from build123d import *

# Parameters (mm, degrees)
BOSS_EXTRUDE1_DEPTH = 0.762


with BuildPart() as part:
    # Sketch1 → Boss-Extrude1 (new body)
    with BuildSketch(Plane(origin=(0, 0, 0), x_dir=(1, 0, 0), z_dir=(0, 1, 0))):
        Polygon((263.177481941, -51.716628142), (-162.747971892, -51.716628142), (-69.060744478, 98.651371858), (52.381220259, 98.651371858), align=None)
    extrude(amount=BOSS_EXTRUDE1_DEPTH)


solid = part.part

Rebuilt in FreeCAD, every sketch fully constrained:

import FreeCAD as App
import Part
import Sketcher
Q = App.Units.Quantity


def add_polygon(sketch, points):
    """Adds a closed chain of lines whose ends are joined by coincident constraints."""
    first, n = sketch.GeometryCount, len(points)
    for a, b in zip(points, points[1:] + points[:1]):
        sketch.addGeometry(Part.LineSegment(App.Vector(*a, 0), App.Vector(*b, 0)), False)
    for i in range(n):
        sketch.addConstraint(Sketcher.Constraint("Coincident", first + i, 2, first + (i + 1) % n, 1))

doc = App.newDocument("Part")
body = doc.addObject("PartDesign::Body", "Body")

sketch1 = body.newObject("Sketcher::SketchObject", "Sketch")
sketch1.AttachmentSupport = (doc.getObject("XZ_Plane"), [""])
sketch1.MapMode = "FlatFace"
add_polygon(sketch1, [(-163, 52), (263, 52), (52, -99), (-69, -99)])
sketch1.addConstraint(Sketcher.Constraint("Horizontal", 0))
sketch1.addConstraint(Sketcher.Constraint("Horizontal", 2))
sketch1.addConstraint(Sketcher.Constraint("DistanceY", 1, 2, 0, 2, Q("5.92 in")))
sketch1.addConstraint(Sketcher.Constraint("Distance", 1, 258.93165))
sketch1.addConstraint(Sketcher.Constraint("DistanceX", 0, 1, 0, 2, 425.925454))
sketch1.addConstraint(Sketcher.Constraint("DistanceX", 2, 2, 2, 1, 121.441965))
sketch1.addConstraint(Sketcher.Constraint("DistanceX", -1, 1, 0, 2, 263.177482))
sketch1.addConstraint(Sketcher.Constraint("DistanceY", -1, 1, 0, 2, 51.716628))
pad1 = body.newObject("PartDesign::Pad", "Pad")
pad1.Profile = sketch1
pad1.Length = Q("0.03 in")
pad1.Reversed = True

doc.recompute()
